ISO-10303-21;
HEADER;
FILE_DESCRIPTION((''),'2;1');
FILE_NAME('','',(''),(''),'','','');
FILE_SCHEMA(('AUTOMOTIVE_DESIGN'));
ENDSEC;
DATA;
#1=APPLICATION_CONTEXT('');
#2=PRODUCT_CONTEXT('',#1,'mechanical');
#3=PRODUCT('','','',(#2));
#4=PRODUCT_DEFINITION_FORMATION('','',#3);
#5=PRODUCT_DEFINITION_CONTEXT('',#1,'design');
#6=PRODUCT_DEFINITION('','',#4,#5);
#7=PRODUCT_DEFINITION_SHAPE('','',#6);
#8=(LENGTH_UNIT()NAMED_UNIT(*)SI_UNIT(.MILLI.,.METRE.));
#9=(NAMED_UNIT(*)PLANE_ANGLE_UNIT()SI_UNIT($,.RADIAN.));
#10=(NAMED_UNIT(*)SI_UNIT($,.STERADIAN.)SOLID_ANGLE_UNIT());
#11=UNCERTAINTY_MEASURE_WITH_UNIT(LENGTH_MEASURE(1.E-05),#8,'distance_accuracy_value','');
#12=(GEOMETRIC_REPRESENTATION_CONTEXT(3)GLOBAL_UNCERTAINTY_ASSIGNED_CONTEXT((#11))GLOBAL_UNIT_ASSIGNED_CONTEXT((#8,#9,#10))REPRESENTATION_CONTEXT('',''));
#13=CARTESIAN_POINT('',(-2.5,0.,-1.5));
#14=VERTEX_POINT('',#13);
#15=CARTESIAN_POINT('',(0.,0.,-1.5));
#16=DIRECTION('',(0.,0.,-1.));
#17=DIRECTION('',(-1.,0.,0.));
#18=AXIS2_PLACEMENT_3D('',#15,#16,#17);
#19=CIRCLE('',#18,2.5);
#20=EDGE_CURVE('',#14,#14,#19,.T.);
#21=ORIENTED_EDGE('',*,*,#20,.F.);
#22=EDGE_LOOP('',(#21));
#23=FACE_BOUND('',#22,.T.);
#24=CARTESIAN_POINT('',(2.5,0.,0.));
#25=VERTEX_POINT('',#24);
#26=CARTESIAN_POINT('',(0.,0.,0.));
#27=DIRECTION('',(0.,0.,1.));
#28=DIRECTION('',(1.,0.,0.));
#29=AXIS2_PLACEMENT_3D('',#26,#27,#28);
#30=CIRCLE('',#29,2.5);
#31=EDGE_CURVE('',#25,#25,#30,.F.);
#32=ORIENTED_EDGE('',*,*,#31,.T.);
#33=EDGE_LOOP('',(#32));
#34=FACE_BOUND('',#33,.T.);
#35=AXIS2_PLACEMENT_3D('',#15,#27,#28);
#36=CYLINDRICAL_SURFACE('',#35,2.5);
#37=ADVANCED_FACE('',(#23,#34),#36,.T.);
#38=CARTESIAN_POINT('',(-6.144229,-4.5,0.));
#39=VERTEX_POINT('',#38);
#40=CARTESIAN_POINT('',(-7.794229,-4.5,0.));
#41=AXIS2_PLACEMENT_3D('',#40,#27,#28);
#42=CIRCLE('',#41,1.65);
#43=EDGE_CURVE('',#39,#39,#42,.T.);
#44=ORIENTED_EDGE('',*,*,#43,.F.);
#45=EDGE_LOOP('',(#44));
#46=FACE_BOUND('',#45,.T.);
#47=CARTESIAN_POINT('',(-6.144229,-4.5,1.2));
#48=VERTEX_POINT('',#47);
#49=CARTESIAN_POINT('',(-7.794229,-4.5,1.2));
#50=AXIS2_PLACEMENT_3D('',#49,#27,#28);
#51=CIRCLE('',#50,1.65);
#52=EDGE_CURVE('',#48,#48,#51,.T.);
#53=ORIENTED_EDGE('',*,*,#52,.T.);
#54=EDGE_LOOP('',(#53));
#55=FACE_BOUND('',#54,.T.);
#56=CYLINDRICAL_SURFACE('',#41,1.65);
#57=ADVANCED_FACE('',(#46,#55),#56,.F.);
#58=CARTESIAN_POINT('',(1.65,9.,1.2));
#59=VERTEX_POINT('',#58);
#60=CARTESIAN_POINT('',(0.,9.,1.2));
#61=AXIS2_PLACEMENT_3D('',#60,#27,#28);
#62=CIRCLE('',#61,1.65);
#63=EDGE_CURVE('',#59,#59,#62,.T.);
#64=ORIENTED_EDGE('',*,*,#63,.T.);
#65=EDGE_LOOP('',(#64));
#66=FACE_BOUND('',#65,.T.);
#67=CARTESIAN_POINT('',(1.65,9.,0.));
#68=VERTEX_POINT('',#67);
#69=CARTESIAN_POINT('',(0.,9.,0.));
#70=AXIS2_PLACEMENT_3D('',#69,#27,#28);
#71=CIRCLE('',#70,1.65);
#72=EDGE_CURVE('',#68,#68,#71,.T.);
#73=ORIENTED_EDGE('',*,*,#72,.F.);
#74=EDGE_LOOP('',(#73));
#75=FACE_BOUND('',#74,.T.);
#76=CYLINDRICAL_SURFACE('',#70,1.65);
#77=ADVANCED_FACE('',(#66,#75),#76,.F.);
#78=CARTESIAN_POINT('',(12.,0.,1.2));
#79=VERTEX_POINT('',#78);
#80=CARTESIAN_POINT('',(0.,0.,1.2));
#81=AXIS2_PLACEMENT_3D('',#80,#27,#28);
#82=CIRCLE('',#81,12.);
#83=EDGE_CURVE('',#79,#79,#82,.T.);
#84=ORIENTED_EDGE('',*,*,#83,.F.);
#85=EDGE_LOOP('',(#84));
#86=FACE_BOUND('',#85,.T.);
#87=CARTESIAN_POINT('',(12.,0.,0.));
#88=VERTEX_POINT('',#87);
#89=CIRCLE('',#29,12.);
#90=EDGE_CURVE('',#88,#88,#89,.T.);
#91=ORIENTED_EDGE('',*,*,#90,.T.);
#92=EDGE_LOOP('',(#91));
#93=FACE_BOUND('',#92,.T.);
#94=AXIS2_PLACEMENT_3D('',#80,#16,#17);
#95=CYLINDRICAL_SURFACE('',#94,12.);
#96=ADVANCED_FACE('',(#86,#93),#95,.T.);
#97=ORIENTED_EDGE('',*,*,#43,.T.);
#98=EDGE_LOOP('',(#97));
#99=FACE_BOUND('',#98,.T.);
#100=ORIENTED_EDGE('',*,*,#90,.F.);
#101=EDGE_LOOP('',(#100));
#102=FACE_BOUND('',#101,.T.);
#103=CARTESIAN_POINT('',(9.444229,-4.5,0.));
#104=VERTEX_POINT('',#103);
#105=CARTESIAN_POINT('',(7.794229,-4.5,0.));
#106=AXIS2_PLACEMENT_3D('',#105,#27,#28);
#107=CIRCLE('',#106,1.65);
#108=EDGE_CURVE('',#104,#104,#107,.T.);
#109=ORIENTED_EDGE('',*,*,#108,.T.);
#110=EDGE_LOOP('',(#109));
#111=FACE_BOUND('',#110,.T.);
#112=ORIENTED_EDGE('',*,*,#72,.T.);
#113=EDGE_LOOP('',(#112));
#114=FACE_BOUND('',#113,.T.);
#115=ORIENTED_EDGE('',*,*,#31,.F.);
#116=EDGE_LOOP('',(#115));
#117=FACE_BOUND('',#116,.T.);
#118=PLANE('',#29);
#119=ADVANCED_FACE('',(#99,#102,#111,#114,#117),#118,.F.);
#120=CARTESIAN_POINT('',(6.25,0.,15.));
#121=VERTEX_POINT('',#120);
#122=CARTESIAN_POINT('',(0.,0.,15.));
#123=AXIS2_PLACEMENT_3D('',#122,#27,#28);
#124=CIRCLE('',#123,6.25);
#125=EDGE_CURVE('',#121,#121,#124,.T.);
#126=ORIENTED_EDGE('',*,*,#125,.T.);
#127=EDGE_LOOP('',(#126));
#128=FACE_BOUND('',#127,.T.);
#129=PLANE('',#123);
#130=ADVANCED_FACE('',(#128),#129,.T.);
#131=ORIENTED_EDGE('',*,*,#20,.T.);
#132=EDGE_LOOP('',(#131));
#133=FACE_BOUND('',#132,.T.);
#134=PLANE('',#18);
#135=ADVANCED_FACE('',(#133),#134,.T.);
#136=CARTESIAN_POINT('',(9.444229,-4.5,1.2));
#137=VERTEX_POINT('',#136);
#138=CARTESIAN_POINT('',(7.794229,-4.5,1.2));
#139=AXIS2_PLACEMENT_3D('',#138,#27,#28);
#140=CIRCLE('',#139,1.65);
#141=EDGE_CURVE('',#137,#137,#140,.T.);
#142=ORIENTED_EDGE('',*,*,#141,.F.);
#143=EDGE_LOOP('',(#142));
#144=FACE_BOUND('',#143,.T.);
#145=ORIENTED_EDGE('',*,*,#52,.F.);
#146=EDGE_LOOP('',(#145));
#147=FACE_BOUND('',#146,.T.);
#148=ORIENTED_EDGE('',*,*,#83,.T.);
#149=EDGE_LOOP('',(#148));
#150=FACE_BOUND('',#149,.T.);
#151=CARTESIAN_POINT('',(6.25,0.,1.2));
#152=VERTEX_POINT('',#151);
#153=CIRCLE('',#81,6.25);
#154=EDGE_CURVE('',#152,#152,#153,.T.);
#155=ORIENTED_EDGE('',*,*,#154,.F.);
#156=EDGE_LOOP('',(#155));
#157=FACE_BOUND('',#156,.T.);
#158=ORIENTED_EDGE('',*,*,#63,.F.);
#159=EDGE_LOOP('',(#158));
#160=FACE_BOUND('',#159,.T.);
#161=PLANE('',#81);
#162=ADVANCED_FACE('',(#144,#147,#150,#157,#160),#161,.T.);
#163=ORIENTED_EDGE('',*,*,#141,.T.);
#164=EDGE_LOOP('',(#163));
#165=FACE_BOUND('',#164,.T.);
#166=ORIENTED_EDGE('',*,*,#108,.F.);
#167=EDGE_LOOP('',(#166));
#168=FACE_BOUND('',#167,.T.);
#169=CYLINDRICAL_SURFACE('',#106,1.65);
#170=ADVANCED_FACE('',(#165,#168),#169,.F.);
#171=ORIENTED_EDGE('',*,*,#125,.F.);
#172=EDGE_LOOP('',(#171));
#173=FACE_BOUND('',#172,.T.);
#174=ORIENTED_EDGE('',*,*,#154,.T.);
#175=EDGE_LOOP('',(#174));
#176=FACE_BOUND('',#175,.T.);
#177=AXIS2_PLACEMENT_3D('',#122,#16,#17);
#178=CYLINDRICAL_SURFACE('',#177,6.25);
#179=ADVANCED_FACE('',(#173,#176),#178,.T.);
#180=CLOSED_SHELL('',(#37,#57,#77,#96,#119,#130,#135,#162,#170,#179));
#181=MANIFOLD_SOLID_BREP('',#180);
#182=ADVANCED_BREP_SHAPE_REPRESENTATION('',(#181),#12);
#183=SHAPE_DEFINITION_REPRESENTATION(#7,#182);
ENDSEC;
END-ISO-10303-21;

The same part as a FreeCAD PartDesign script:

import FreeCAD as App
import Part
import Sketcher
from FreeCAD import Vector

doc = App.newDocument("Part")
body = doc.addObject("PartDesign::Body", "Body")

sketch1 = body.newObject("Sketcher::SketchObject", "Sketch")
sketch1.AttachmentSupport = (doc.getObject("XY_Plane"), [""])
sketch1.MapMode = "FlatFace"
sketch1.addGeometry(Part.Circle(Vector(0, 0, 0), Vector(0, 0, 1), 12), False)
sketch1.addConstraint([
    Sketcher.Constraint("Coincident", 0, 3, -1, 1),
    Sketcher.Constraint("Diameter", 0, 24.0),
])
pad1 = body.newObject("PartDesign::Pad", "Pad")
pad1.Profile = sketch1
pad1.Length = 1.2

sketch2 = body.newObject("Sketcher::SketchObject", "Sketch001")
sketch2.AttachmentSupport = (doc.getObject("XY_Plane"), [""])
sketch2.MapMode = "FlatFace"
sketch2.AttachmentOffset = App.Placement(Vector(0, 0, 1.2), App.Rotation())
sketch2.addGeometry(Part.Circle(Vector(0, 0, 0), Vector(0, 0, 1), 6), False)
sketch2.addConstraint([
    Sketcher.Constraint("Coincident", 0, 3, -1, 1),
    Sketcher.Constraint("Diameter", 0, 12.5),
])
pad2 = body.newObject("PartDesign::Pad", "Pad001")
pad2.Profile = sketch2
pad2.Length = 13.8

sketch3 = body.newObject("Sketcher::SketchObject", "Sketch002")
sketch3.AttachmentSupport = (doc.getObject("XY_Plane"), [""])
sketch3.MapMode = "FlatFace"
sketch3.AttachmentOffset = App.Placement(Vector(0, 0, 1.2), App.Rotation())
sketch3.addGeometry([
    Part.Circle(Vector(0, 9, 0), Vector(0, 0, 1), 1.6),
    Part.Circle(Vector(7.8, -4.5, 0), Vector(0, 0, 1), 1.6),
    Part.Circle(Vector(-7.8, -4.5, 0), Vector(0, 0, 1), 1.6),
], False)
sketch3.addConstraint([
    Sketcher.Constraint("Equal", 0, 1),
    Sketcher.Constraint("Equal", 1, 2),
    Sketcher.Constraint("Symmetric", 1, 3, 2, 3, -2),
    Sketcher.Constraint("PointOnObject", 0, 3, -2),
    Sketcher.Constraint("Diameter", 0, 3.3),
    Sketcher.Constraint("DistanceY", -1, 1, 0, 3, 9.0),
    Sketcher.Constraint("DistanceY", 1, 3, -1, 1, 4.5),
    Sketcher.Constraint("DistanceX", -1, 1, 1, 3, 7.794229),
])
pocket1 = body.newObject("PartDesign::Pocket", "Pocket")
pocket1.Profile = sketch3
pocket1.Type = "ThroughAll"

sketch4 = body.newObject("Sketcher::SketchObject", "Sketch003")
sketch4.AttachmentSupport = (doc.getObject("XY_Plane"), [""])
sketch4.MapMode = "FlatFace"
sketch4.addGeometry(Part.Circle(Vector(0, 0, 0), Vector(0, 0, 1), 2.5), False)
sketch4.addConstraint([
    Sketcher.Constraint("Coincident", 0, 3, -1, 1),
    Sketcher.Constraint("Diameter", 0, 5.0),
])
pad3 = body.newObject("PartDesign::Pad", "Pad002")
pad3.Profile = sketch4
pad3.Length = 1.5
pad3.Reversed = True

doc.recompute()
